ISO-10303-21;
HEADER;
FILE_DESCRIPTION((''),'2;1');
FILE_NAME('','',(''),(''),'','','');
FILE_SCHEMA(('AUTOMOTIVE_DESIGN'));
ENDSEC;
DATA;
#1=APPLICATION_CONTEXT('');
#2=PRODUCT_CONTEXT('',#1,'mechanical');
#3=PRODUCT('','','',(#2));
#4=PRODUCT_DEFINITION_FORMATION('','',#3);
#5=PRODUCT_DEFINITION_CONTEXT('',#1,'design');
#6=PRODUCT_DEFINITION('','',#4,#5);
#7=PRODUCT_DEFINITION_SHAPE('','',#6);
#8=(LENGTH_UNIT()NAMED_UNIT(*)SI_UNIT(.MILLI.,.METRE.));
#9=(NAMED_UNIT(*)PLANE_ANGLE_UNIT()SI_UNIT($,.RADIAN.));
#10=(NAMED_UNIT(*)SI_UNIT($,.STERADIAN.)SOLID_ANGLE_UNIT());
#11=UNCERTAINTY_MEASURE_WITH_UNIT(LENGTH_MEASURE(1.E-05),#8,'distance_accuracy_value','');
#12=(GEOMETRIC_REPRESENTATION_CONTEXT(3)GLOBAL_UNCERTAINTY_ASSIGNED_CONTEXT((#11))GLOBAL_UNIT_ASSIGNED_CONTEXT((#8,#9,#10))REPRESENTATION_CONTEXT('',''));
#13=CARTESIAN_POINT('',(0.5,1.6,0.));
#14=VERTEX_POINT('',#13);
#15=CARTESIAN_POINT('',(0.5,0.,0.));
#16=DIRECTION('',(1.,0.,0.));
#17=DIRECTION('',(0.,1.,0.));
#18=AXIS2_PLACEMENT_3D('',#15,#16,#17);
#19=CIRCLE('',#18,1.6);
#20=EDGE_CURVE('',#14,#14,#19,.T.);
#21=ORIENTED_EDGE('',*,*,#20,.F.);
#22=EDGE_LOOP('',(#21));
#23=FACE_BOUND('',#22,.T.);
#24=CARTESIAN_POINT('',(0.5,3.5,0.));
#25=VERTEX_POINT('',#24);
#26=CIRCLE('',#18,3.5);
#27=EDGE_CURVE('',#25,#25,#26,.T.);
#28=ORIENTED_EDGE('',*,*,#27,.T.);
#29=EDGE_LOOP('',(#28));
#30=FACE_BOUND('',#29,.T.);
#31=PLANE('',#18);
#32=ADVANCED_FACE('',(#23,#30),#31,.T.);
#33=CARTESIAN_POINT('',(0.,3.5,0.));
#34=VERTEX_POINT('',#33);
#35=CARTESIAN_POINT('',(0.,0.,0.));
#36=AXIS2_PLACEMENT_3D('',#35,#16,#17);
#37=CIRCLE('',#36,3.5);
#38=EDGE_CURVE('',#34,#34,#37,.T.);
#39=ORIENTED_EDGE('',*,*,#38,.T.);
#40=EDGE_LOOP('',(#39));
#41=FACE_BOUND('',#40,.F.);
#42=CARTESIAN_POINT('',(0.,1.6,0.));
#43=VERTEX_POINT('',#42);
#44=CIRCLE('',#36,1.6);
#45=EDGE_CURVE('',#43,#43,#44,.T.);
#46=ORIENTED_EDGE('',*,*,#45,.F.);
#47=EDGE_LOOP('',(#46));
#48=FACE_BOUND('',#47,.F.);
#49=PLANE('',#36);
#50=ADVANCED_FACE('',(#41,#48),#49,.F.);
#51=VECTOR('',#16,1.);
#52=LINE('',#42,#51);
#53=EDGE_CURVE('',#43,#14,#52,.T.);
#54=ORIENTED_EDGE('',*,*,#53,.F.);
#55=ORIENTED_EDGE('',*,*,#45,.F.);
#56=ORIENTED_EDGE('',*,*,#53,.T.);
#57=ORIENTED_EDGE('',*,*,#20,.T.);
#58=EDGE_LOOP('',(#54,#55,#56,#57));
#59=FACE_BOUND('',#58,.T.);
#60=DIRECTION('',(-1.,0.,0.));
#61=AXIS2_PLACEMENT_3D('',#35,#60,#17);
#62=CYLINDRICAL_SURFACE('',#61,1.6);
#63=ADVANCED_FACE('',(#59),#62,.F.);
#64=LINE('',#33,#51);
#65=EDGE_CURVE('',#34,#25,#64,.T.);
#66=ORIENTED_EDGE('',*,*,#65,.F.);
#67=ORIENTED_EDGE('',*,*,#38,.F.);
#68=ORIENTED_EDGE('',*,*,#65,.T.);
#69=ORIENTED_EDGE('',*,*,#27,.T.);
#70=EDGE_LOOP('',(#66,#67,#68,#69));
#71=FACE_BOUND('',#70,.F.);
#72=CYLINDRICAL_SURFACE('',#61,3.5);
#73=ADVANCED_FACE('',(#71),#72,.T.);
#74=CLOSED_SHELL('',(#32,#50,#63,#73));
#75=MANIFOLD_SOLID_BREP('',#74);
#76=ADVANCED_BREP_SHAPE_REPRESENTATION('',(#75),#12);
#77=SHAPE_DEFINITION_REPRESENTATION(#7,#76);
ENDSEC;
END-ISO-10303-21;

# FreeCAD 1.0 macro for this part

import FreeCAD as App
import Part
import Sketcher
Q = App.Units.Quantity

doc = App.newDocument("Part")
body = doc.addObject("PartDesign::Body", "Body")

# Sketch on YZ plane
sketch1 = doc.addObject("Sketcher::SketchObject", "Sketch")
body.addObject(sketch1)
sketch1.AttachmentSupport = (doc.YZ_Plane, [""])
sketch1.MapMode = "FlatFace"
sketch1.addGeometry([
    Part.Circle(App.Vector(0, 0, 0), App.Vector(0, 0, 1), 3.5),
    Part.Circle(App.Vector(0, 0, 0), App.Vector(0, 0, 1), 1.6),
], False)
sketch1.addConstraint([
    Sketcher.Constraint("Coincident", 0, 3, -1, 1),
    Sketcher.Constraint("Coincident", 1, 3, -1, 1),
    Sketcher.Constraint("Diameter", 0, Q("7 mm")),
    Sketcher.Constraint("Diameter", 1, Q("3.2 mm")),
])
pad1 = doc.addObject("PartDesign::Pad", "Pad")
body.addObject(pad1)
pad1.Profile = sketch1
pad1.Length = 0.5

doc.recompute()
